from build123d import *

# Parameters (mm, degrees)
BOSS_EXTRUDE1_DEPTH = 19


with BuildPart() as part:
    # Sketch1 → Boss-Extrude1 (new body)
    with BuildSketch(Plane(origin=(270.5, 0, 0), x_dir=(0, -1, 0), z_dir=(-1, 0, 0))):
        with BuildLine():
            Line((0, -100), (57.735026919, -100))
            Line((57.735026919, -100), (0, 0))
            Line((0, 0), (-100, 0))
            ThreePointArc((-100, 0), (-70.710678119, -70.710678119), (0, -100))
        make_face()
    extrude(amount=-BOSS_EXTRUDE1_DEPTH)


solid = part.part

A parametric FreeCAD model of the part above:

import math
import FreeCAD as App
import Part
import Sketcher

V = App.Vector
Q = App.Units.Quantity

doc = App.newDocument("Part")
body = doc.addObject("PartDesign::Body", "Body")

# Sketch on YZ plane
sketch1 = body.newObject("Sketcher::SketchObject", "Sketch")
sketch1.AttachmentSupport = (doc.getObject("YZ_Plane"), [""])
sketch1.MapMode = "FlatFace"
sketch1.AttachmentOffset = App.Placement(V(0, 0, 270.5), App.Rotation())
sketch1.addGeometry(Part.LineSegment(V(0, -100, 0), V(-58, -100, 0)), False)
sketch1.addGeometry(Part.LineSegment(V(-58, -100, 0), V(0, 0, 0)), False)
sketch1.addGeometry(Part.LineSegment(V(0, 0, 0), V(100, 0, 0)), False)
sketch1.addGeometry(Part.ArcOfCircle(Part.Circle(V(0, 0, 0), V(0, 0, 1), 100), math.radians(-90), math.radians(0)), False)
sketch1.addConstraint(Sketcher.Constraint("Coincident", 0, 2, 1, 1))
sketch1.addConstraint(Sketcher.Constraint("Coincident", 1, 2, 2, 1))
sketch1.addConstraint(Sketcher.Constraint("Coincident", 2, 2, 3, 2))
sketch1.addConstraint(Sketcher.Constraint("Tangent", 3, 1, 0, 1))
sketch1.addConstraint(Sketcher.Constraint("Horizontal", 0))
sketch1.addConstraint(Sketcher.Constraint("Horizontal", 2))
sketch1.addConstraint(Sketcher.Constraint("Coincident", 3, 3, -1, 1))
sketch1.addConstraint(Sketcher.Constraint("Coincident", 1, 2, -1, 1))
sketch1.addConstraint(Sketcher.Constraint("Radius", 3, 100.0))
sketch1.addConstraint(Sketcher.Constraint("Angle", 1, Q("60 deg")))
pad1 = body.newObject("PartDesign::Pad", "Pad")
pad1.Profile = sketch1
pad1.Length = 19

doc.recompute()
